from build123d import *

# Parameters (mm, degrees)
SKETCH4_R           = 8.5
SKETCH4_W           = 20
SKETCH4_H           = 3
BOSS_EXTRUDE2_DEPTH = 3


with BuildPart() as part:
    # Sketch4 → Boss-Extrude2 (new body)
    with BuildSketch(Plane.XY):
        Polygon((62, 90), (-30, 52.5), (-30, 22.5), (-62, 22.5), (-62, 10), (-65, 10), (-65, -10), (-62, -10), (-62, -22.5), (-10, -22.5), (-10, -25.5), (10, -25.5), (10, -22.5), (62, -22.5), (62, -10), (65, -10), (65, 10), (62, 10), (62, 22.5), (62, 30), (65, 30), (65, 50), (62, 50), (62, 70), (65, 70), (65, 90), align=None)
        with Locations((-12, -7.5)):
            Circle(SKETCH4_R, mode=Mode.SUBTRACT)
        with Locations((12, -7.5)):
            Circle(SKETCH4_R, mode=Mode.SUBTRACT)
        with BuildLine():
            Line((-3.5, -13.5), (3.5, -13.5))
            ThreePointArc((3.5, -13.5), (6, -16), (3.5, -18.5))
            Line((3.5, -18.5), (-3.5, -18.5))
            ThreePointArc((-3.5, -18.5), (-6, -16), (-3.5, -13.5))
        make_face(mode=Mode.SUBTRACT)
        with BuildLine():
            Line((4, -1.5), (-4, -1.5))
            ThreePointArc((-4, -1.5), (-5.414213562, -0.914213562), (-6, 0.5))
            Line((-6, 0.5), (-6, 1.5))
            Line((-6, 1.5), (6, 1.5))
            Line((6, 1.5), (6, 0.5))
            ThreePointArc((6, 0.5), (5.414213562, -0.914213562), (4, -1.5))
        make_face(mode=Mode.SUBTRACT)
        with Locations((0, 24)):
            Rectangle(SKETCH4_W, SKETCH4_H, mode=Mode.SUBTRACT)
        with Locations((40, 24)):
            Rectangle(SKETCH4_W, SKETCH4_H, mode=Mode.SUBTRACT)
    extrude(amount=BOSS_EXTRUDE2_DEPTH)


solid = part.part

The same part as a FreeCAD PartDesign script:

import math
import FreeCAD as App
import Part
import Sketcher
Q = App.Units.Quantity

doc = App.newDocument("Part")
body = doc.addObject("PartDesign::Body", "Body")

# Sketch on XY plane
sketch1 = body.newObject("Sketcher::SketchObject", "Sketch")
sketch1.AttachmentSupport = (doc.getObject("XY_Plane"), [""])
sketch1.MapMode = "FlatFace"
sketch1.addGeometry(Part.LineSegment(App.Vector(62, 90, 0), App.Vector(-30, 52.5, 0)), False)
sketch1.addGeometry(Part.LineSegment(App.Vector(-30, 52.5, 0), App.Vector(-30, 22.5, 0)), False)
sketch1.addGeometry(Part.LineSegment(App.Vector(-30, 22.5, 0), App.Vector(-62, 22.5, 0)), False)
sketch1.addGeometry(Part.LineSegment(App.Vector(-62, 22.5, 0), App.Vector(-62, 10, 0)), False)
sketch1.addGeometry(Part.LineSegment(App.Vector(-62, 10, 0), App.Vector(-65, 10, 0)), False)
sketch1.addGeometry(Part.LineSegment(App.Vector(-65, 10, 0), App.Vector(-65, -10, 0)), False)
sketch1.addGeometry(Part.LineSegment(App.Vector(-65, -10, 0), App.Vector(-62, -10, 0)), False)
sketch1.addGeometry(Part.LineSegment(App.Vector(-62, -10, 0), App.Vector(-62, -22.5, 0)), False)
sketch1.addGeometry(Part.LineSegment(App.Vector(-62, -22.5, 0), App.Vector(-10, -22.5, 0)), False)
sketch1.addGeometry(Part.LineSegment(App.Vector(-10, -22.5, 0), App.Vector(-10, -25.5, 0)), False)
sketch1.addGeometry(Part.LineSegment(App.Vector(-10, -25.5, 0), App.Vector(10, -25.5, 0)), False)
sketch1.addGeometry(Part.LineSegment(App.Vector(10, -25.5, 0), App.Vector(10, -22.5, 0)), False)
sketch1.addGeometry(Part.LineSegment(App.Vector(10, -22.5, 0), App.Vector(62, -22.5, 0)), False)
sketch1.addGeometry(Part.LineSegment(App.Vector(62, -22.5, 0), App.Vector(62, -10, 0)), False)
sketch1.addGeometry(Part.LineSegment(App.Vector(62, -10, 0), App.Vector(65, -10, 0)), False)
sketch1.addGeometry(Part.LineSegment(App.Vector(65, -10, 0), App.Vector(65, 10, 0)), False)
sketch1.addGeometry(Part.LineSegment(App.Vector(65, 10, 0), App.Vector(62, 10, 0)), False)
sketch1.addGeometry(Part.LineSegment(App.Vector(62, 10, 0), App.Vector(62, 30, 0)), False)
sketch1.addGeometry(Part.LineSegment(App.Vector(62, 30, 0), App.Vector(65, 30, 0)), False)
sketch1.addGeometry(Part.LineSegment(App.Vector(65, 30, 0), App.Vector(65, 50, 0)), False)
sketch1.addGeometry(Part.LineSegment(App.Vector(65, 50, 0), App.Vector(62, 50, 0)), False)
sketch1.addGeometry(Part.LineSegment(App.Vector(62, 50, 0), App.Vector(62, 70, 0)), False)
sketch1.addGeometry(Part.LineSegment(App.Vector(62, 70, 0), App.Vector(65, 70, 0)), False)
sketch1.addGeometry(Part.LineSegment(App.Vector(65, 70, 0), App.Vector(65, 90, 0)), False)
sketch1.addGeometry(Part.LineSegment(App.Vector(65, 90, 0), App.Vector(62, 90, 0)), False)
sketch1.addGeometry(Part.ArcOfCircle(Part.Circle(App.Vector(-3.5, -16, 0), App.Vector(0, 0, 1), 2.5), math.radians(90), math.radians(270)), False)
sketch1.addGeometry(Part.LineSegment(App.Vector(-3.5, -13.5, 0), App.Vector(3.5, -13.5, 0)), False)
sketch1.addGeometry(Part.ArcOfCircle(Part.Circle(App.Vector(3.5, -16, 0), App.Vector(0, 0, 1), 2.5), math.radians(-90), math.radians(90)), False)
sketch1.addGeometry(Part.LineSegment(App.Vector(3.5, -18.5, 0), App.Vector(-3.5, -18.5, 0)), False)
sketch1.addGeometry(Part.Circle(App.Vector(-12, -7.5, 0), App.Vector(0, 0, 1), 8.5), False)
sketch1.addGeometry(Part.Circle(App.Vector(12, -7.5, 0), App.Vector(0, 0, 1), 8.5), False)
sketch1.addGeometry(Part.ArcOfCircle(Part.Circle(App.Vector(4, 0.5, 0), App.Vector(0, 0, 1), 2), math.radians(-90), math.radians(0)), False)
sketch1.addGeometry(Part.LineSegment(App.Vector(4, -1.5, 0), App.Vector(-4, -1.5, 0)), False)
sketch1.addGeometry(Part.ArcOfCircle(Part.Circle(App.Vector(-4, 0.5, 0), App.Vector(0, 0, 1), 2), math.radians(-180), math.radians(-90)), False)
sketch1.addGeometry(Part.LineSegment(App.Vector(-6, 0.5, 0), App.Vector(-6, 1.5, 0)), False)
sketch1.addGeometry(Part.LineSegment(App.Vector(-6, 1.5, 0), App.Vector(6, 1.5, 0)), False)
sketch1.addGeometry(Part.LineSegment(App.Vector(6, 1.5, 0), App.Vector(6, 0.5, 0)), False)
sketch1.addGeometry(Part.LineSegment(App.Vector(10, 22.5, 0), App.Vector(-10, 22.5, 0)), False)
sketch1.addGeometry(Part.LineSegment(App.Vector(-10, 22.5, 0), App.Vector(-10, 25.5, 0)), False)
sketch1.addGeometry(Part.LineSegment(App.Vector(-10, 25.5, 0), App.Vector(10, 25.5, 0)), False)
sketch1.addGeometry(Part.LineSegment(App.Vector(10, 25.5, 0), App.Vector(10, 22.5, 0)), False)
sketch1.addGeometry(Part.LineSegment(App.Vector(50, 22.5, 0), App.Vector(30, 22.5, 0)), False)
sketch1.addGeometry(Part.LineSegment(App.Vector(30, 22.5, 0), App.Vector(30, 25.5, 0)), False)
sketch1.addGeometry(Part.LineSegment(App.Vector(30, 25.5, 0), App.Vector(50, 25.5, 0)), False)
sketch1.addGeometry(Part.LineSegment(App.Vector(50, 25.5, 0), App.Vector(50, 22.5, 0)), False)
sketch1.addConstraint(Sketcher.Constraint("Coincident", 0, 2, 1, 1))
sketch1.addConstraint(Sketcher.Constraint("Coincident", 1, 2, 2, 1))
sketch1.addConstraint(Sketcher.Constraint("Coincident", 2, 2, 3, 1))
sketch1.addConstraint(Sketcher.Constraint("Coincident", 3, 2, 4, 1))
sketch1.addConstraint(Sketcher.Constraint("Coincident", 4, 2, 5, 1))
sketch1.addConstraint(Sketcher.Constraint("Coincident", 5, 2, 6, 1))
sketch1.addConstraint(Sketcher.Constraint("Coincident", 6, 2, 7, 1))
sketch1.addConstraint(Sketcher.Constraint("Coincident", 7, 2, 8, 1))
sketch1.addConstraint(Sketcher.Constraint("Coincident", 8, 2, 9, 1))
sketch1.addConstraint(Sketcher.Constraint("Coincident", 9, 2, 10, 1))
sketch1.addConstraint(Sketcher.Constraint("Coincident", 10, 2, 11, 1))
sketch1.addConstraint(Sketcher.Constraint("Coincident", 11, 2, 12, 1))
sketch1.addConstraint(Sketcher.Constraint("Coincident", 12, 2, 13, 1))
sketch1.addConstraint(Sketcher.Constraint("Coincident", 13, 2, 14, 1))
sketch1.addConstraint(Sketcher.Constraint("Coincident", 14, 2, 15, 1))
sketch1.addConstraint(Sketcher.Constraint("Coincident", 15, 2, 16, 1))
sketch1.addConstraint(Sketcher.Constraint("Coincident", 16, 2, 17, 1))
sketch1.addConstraint(Sketcher.Constraint("Coincident", 17, 2, 18, 1))
sketch1.addConstraint(Sketcher.Constraint("Coincident", 18, 2, 19, 1))
sketch1.addConstraint(Sketcher.Constraint("Coincident", 19, 2, 20, 1))
sketch1.addConstraint(Sketcher.Constraint("Coincident", 20, 2, 21, 1))
sketch1.addConstraint(Sketcher.Constraint("Coincident", 21, 2, 22, 1))
sketch1.addConstraint(Sketcher.Constraint("Coincident", 22, 2, 23, 1))
sketch1.addConstraint(Sketcher.Constraint("Coincident", 23, 2, 24, 1))
sketch1.addConstraint(Sketcher.Constraint("Coincident", 24, 2, 0, 1))
sketch1.addConstraint(Sketcher.Constraint("Tangent", 25, 1, 26, 1))
sketch1.addConstraint(Sketcher.Constraint("Tangent", 26, 2, 27, 2))
sketch1.addConstraint(Sketcher.Constraint("Tangent", 27, 1, 28, 1))
sketch1.addConstraint(Sketcher.Constraint("Tangent", 28, 2, 25, 2))
sketch1.addConstraint(Sketcher.Constraint("Tangent", 31, 1, 32, 1))
sketch1.addConstraint(Sketcher.Constraint("Tangent", 32, 2, 33, 2))
sketch1.addConstraint(Sketcher.Constraint("Tangent", 33, 1, 34, 1))
sketch1.addConstraint(Sketcher.Constraint("Coincident", 34, 2, 35, 1))
sketch1.addConstraint(Sketcher.Constraint("Coincident", 35, 2, 36, 1))
sketch1.addConstraint(Sketcher.Constraint("Tangent", 36, 2, 31, 2))
sketch1.addConstraint(Sketcher.Constraint("Coincident", 37, 2, 38, 1))
sketch1.addConstraint(Sketcher.Constraint("Coincident", 38, 2, 39, 1))
sketch1.addConstraint(Sketcher.Constraint("Coincident", 39, 2, 40, 1))
sketch1.addConstraint(Sketcher.Constraint("Coincident", 40, 2, 37, 1))
sketch1.addConstraint(Sketcher.Constraint("Coincident", 41, 2, 42, 1))
sketch1.addConstraint(Sketcher.Constraint("Coincident", 42, 2, 43, 1))
sketch1.addConstraint(Sketcher.Constraint("Coincident", 43, 2, 44, 1))
sketch1.addConstraint(Sketcher.Constraint("Coincident", 44, 2, 41, 1))
sketch1.addConstraint(Sketcher.Constraint("Vertical", 1))
sketch1.addConstraint(Sketcher.Constraint("Horizontal", 2))
sketch1.addConstraint(Sketcher.Constraint("Vertical", 3))
sketch1.addConstraint(Sketcher.Constraint("Horizontal", 4))
sketch1.addConstraint(Sketcher.Constraint("Vertical", 5))
sketch1.addConstraint(Sketcher.Constraint("Horizontal", 6))
sketch1.addConstraint(Sketcher.Constraint("Vertical", 7))
sketch1.addConstraint(Sketcher.Constraint("Horizontal", 8))
sketch1.addConstraint(Sketcher.Constraint("Vertical", 9))
sketch1.addConstraint(Sketcher.Constraint("Horizontal", 10))
sketch1.addConstraint(Sketcher.Constraint("Vertical", 11))
sketch1.addConstraint(Sketcher.Constraint("Horizontal", 12))
sketch1.addConstraint(Sketcher.Constraint("Vertical", 13))
sketch1.addConstraint(Sketcher.Constraint("Horizontal", 14))
sketch1.addConstraint(Sketcher.Constraint("Vertical", 15))
sketch1.addConstraint(Sketcher.Constraint("Horizontal", 16))
sketch1.addConstraint(Sketcher.Constraint("Vertical", 17))
sketch1.addConstraint(Sketcher.Constraint("Horizontal", 18))
sketch1.addConstraint(Sketcher.Constraint("Vertical", 19))
sketch1.addConstraint(Sketcher.Constraint("Horizontal", 20))
sketch1.addConstraint(Sketcher.Constraint("Vertical", 21))
sketch1.addConstraint(Sketcher.Constraint("Horizontal", 22))
sketch1.addConstraint(Sketcher.Constraint("Vertical", 23))
sketch1.addConstraint(Sketcher.Constraint("Horizontal", 24))
sketch1.addConstraint(Sketcher.Constraint("Horizontal", 26))
sketch1.addConstraint(Sketcher.Constraint("Horizontal", 28))
sketch1.addConstraint(Sketcher.Constraint("Horizontal", 32))
sketch1.addConstraint(Sketcher.Constraint("Vertical", 34))
sketch1.addConstraint(Sketcher.Constraint("Horizontal", 35))
sketch1.addConstraint(Sketcher.Constraint("Vertical", 36))
sketch1.addConstraint(Sketcher.Constraint("Horizontal", 37))
sketch1.addConstraint(Sketcher.Constraint("Vertical", 38))
sketch1.addConstraint(Sketcher.Constraint("Horizontal", 39))
sketch1.addConstraint(Sketcher.Constraint("Vertical", 40))
sketch1.addConstraint(Sketcher.Constraint("Horizontal", 41))
sketch1.addConstraint(Sketcher.Constraint("Vertical", 42))
sketch1.addConstraint(Sketcher.Constraint("Horizontal", 43))
sketch1.addConstraint(Sketcher.Constraint("Vertical", 44))
sketch1.addConstraint(Sketcher.Constraint("Equal", 29, 30))
sketch1.addConstraint(Sketcher.Constraint("Equal", 31, 33))
sketch1.addConstraint(Sketcher.Constraint("Symmetric", 2, 2, 12, 2, -1, 1))
sketch1.addConstraint(Sketcher.Constraint("Symmetric", 4, 2, 14, 2, -1, 1))
sketch1.addConstraint(Sketcher.Constraint("Symmetric", 6, 2, 16, 2, -1, 1))
sketch1.addConstraint(Sketcher.Constraint("Symmetric", 11, 2, 37, 2, -1, 1))
sketch1.addConstraint(Sketcher.Constraint("Symmetric", 9, 2, 39, 2, -1, 1))
sketch1.addConstraint(Sketcher.Constraint("Symmetric", 29, 3, 30, 3, -2))
sketch1.addConstraint(Sketcher.Constraint("Symmetric", 8, 2, 11, 2, -2))
sketch1.addConstraint(Sketcher.Constraint("Symmetric", 6, 2, 13, 2, -2))
sketch1.addConstraint(Sketcher.Constraint("Symmetric", 1, 2, 41, 2, -2))
sketch1.addConstraint(Sketcher.Constraint("Horizontal", 39, 2, 42, 2))
sketch1.addConstraint(Sketcher.Constraint("Vertical", 15, 2, 18, 2))
sketch1.addConstraint(Sketcher.Constraint("Vertical", 17, 2, 20, 2))
sketch1.addConstraint(Sketcher.Constraint("Vertical", 19, 2, 22, 2))
sketch1.addConstraint(Sketcher.Constraint("Vertical", 21, 2, 24, 2))
sketch1.addConstraint(Sketcher.Constraint("Equal", 39, 41))
sketch1.addConstraint(Sketcher.Constraint("Equal", 43, 5))
sketch1.addConstraint(Sketcher.Constraint("Equal", 24, 9))
sketch1.addConstraint(Sketcher.Constraint("Equal", 15, 17))
sketch1.addConstraint(Sketcher.Constraint("Equal", 17, 19))
sketch1.addConstraint(Sketcher.Constraint("Equal", 19, 21))
sketch1.addConstraint(Sketcher.Constraint("Equal", 21, 23))
sketch1.addConstraint(Sketcher.Constraint("Diameter", 29, Q("17 mm")))
sketch1.addConstraint(Sketcher.Constraint("Radius", 31, Q("2 mm")))
sketch1.addConstraint(Sketcher.Constraint("Radius", 25, Q("2.5 mm")))
sketch1.addConstraint(Sketcher.Constraint("DistanceX", 2, 2, 2, 1, Q("32 mm")))
sketch1.addConstraint(Sketcher.Constraint("DistanceX", 4, 2, 4, 1, Q("3 mm")))
sketch1.addConstraint(Sketcher.Constraint("DistanceX", 8, 1, 8, 2, Q("52 mm")))
sketch1.addConstraint(Sketcher.Constraint("DistanceX", 10, 1, 10, 2, Q("20 mm")))
sketch1.addConstraint(Sketcher.Constraint("DistanceX", 26, 1, 26, 2, Q("7 mm")))
sketch1.addConstraint(Sketcher.Constraint("DistanceX", 32, 2, 32, 1, Q("8 mm")))
sketch1.addConstraint(Sketcher.Constraint("DistanceY", 1, 2, 1, 1, Q("30 mm")))
sketch1.addConstraint(Sketcher.Constraint("DistanceY", 34, 1, 34, 2, Q("1 mm")))
sketch1.addConstraint(Sketcher.Constraint("DistanceY", 3, 2, 3, 1, Q("12.5 mm")))
sketch1.addConstraint(Sketcher.Constraint("DistanceY", 25, 3, -1, 1, Q("16 mm")))
sketch1.addConstraint(Sketcher.Constraint("DistanceX", 29, 3, -1, 1, Q("12 mm")))
sketch1.addConstraint(Sketcher.Constraint("DistanceX", -1, 1, 31, 3, Q("4 mm")))
sketch1.addConstraint(Sketcher.Constraint("DistanceY", 30, 3, 31, 3, Q("8 mm")))
sketch1.addConstraint(Sketcher.Constraint("DistanceY", 33, 3, 0, 2, Q("52 mm")))
sketch1.addConstraint(Sketcher.Constraint("DistanceX", 25, 3, -1, 1, Q("3.5 mm")))
pad1 = body.newObject("PartDesign::Pad", "Pad")
pad1.Profile = sketch1
pad1.Length = 3

doc.recompute()
